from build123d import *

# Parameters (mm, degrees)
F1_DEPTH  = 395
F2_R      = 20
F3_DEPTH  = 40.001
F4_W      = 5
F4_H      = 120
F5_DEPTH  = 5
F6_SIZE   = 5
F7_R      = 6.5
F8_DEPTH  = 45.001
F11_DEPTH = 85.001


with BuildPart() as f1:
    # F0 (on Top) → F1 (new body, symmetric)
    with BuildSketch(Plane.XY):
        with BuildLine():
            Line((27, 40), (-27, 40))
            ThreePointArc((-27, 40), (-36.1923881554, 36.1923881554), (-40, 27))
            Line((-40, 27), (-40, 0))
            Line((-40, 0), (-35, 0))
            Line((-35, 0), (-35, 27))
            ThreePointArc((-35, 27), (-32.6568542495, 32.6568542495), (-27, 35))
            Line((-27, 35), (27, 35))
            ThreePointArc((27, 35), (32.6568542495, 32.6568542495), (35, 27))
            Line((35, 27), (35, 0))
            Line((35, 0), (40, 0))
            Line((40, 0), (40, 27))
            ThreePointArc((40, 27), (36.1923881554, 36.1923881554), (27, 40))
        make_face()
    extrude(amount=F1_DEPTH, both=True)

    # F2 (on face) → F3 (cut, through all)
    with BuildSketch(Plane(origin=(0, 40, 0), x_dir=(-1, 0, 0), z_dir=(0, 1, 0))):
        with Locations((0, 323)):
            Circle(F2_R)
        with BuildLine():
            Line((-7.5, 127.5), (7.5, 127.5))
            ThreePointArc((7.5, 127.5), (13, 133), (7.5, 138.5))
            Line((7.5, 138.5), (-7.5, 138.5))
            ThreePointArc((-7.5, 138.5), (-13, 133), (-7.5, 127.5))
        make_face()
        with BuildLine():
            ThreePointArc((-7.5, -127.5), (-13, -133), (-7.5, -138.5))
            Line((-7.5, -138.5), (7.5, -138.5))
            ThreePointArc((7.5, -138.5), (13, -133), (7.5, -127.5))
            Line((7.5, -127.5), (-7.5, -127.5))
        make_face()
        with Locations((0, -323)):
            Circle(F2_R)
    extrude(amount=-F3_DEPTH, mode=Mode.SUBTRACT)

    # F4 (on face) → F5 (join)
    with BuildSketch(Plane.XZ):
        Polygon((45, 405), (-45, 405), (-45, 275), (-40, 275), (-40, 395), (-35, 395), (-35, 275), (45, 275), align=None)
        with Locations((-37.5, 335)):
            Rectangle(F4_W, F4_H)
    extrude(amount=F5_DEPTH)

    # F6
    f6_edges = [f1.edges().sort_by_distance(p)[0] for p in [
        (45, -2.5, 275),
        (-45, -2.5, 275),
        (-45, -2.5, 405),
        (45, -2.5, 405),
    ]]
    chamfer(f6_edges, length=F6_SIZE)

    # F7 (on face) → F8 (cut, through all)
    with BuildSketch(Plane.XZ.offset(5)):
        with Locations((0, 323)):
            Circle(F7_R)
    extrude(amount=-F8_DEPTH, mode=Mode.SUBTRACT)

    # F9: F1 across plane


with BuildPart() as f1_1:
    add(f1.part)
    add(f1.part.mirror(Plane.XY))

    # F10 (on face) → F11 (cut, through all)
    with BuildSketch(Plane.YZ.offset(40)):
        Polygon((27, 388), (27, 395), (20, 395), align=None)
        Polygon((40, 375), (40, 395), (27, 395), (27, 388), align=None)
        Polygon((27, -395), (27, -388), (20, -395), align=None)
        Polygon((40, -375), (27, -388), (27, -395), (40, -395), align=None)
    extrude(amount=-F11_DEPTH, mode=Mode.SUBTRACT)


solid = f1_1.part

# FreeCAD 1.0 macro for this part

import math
import FreeCAD as App
import Part
import Sketcher
Q = App.Units.Quantity


def edges_at(feature, points):
    """Names of the edges that pass closest to the given points."""
    edges = feature.Shape.Edges
    near = lambda p: min(range(len(edges)), key=lambda i: edges[i].distToShape(Part.Vertex(*p))[0])
    return sorted({f"Edge{near(p) + 1}" for p in points})


def add_polygon(sketch, points):
    """Adds a closed chain of lines whose ends are joined by coincident constraints."""
    first, n = sketch.GeometryCount, len(points)
    for a, b in zip(points, points[1:] + points[:1]):
        sketch.addGeometry(Part.LineSegment(App.Vector(*a, 0), App.Vector(*b, 0)), False)
    for i in range(n):
        sketch.addConstraint(Sketcher.Constraint("Coincident", first + i, 2, first + (i + 1) % n, 1))

doc = App.newDocument("Part")
body = doc.addObject("PartDesign::Body", "Body")

# Sketch on XY plane
sketch1 = body.newObject("Sketcher::SketchObject", "Sketch")
sketch1.AttachmentSupport = (doc.getObject("XY_Plane"), [""])
sketch1.MapMode = "FlatFace"
sketch1.addGeometry([
    Part.LineSegment(App.Vector(27, 40, 0), App.Vector(-27, 40, 0)),  # 0
    Part.ArcOfCircle(Part.Circle(App.Vector(-27, 27, 0), App.Vector(0, 0, 1), 13), math.radians(90), math.radians(180)),  # 1
    Part.LineSegment(App.Vector(-40, 27, 0), App.Vector(-40, 0, 0)),  # 2
    Part.LineSegment(App.Vector(-40, 0, 0), App.Vector(-35, 0, 0)),  # 3
    Part.LineSegment(App.Vector(-35, 0, 0), App.Vector(-35, 27, 0)),  # 4
    Part.ArcOfCircle(Part.Circle(App.Vector(-27, 27, 0), App.Vector(0, 0, 1), 8), math.radians(90), math.radians(180)),  # 5
    Part.LineSegment(App.Vector(-27, 35, 0), App.Vector(27, 35, 0)),  # 6
    Part.ArcOfCircle(Part.Circle(App.Vector(27, 27, 0), App.Vector(0, 0, 1), 8), math.radians(0), math.radians(90)),  # 7
    Part.LineSegment(App.Vector(35, 27, 0), App.Vector(35, 0, 0)),  # 8
    Part.LineSegment(App.Vector(35, 0, 0), App.Vector(40, 0, 0)),  # 9
    Part.LineSegment(App.Vector(40, 0, 0), App.Vector(40, 27, 0)),  # 10
    Part.ArcOfCircle(Part.Circle(App.Vector(27, 27, 0), App.Vector(0, 0, 1), 13), math.radians(0), math.radians(90)),  # 11
], False)
sketch1.addConstraint([
    Sketcher.Constraint("Tangent", 0, 2, 1, 1),
    Sketcher.Constraint("Tangent", 1, 2, 2, 1),
    Sketcher.Constraint("Coincident", 2, 2, 3, 1),
    Sketcher.Constraint("Coincident", 3, 2, 4, 1),
    Sketcher.Constraint("Tangent", 4, 2, 5, 2),
    Sketcher.Constraint("Tangent", 5, 1, 6, 1),
    Sketcher.Constraint("Tangent", 6, 2, 7, 2),
    Sketcher.Constraint("Tangent", 7, 1, 8, 1),
    Sketcher.Constraint("Coincident", 8, 2, 9, 1),
    Sketcher.Constraint("Coincident", 9, 2, 10, 1),
    Sketcher.Constraint("Tangent", 10, 2, 11, 1),
    Sketcher.Constraint("Tangent", 11, 2, 0, 1),
    Sketcher.Constraint("Horizontal", 0),
    Sketcher.Constraint("Vertical", 2),
    Sketcher.Constraint("Horizontal", 3),
    Sketcher.Constraint("Vertical", 4),
    Sketcher.Constraint("Horizontal", 6),
    Sketcher.Constraint("Vertical", 8),
    Sketcher.Constraint("Horizontal", 9),
    Sketcher.Constraint("Vertical", 10),
    Sketcher.Constraint("Coincident", 5, 3, 1, 3),
    Sketcher.Constraint("Coincident", 11, 3, 7, 3),
    Sketcher.Constraint("Equal", 5, 7),
    Sketcher.Constraint("Symmetric", 3, 2, 8, 2, -1, 1),
    Sketcher.Constraint("PointOnObject", 2, 2, -1),
    Sketcher.Constraint("Radius", 1, Q("13 mm")),
    Sketcher.Constraint("Radius", 5, Q("8 mm")),
    Sketcher.Constraint("DistanceX", 0, 2, 0, 1, Q("54 mm")),
    Sketcher.Constraint("DistanceY", 2, 2, 2, 1, Q("27 mm")),
])
pad1 = body.newObject("PartDesign::Pad", "Pad")
pad1.Profile = sketch1
pad1.Length = 790
pad1.Midplane = True

# Sketch on XZ plane
sketch2 = body.newObject("Sketcher::SketchObject", "Sketch001")
sketch2.AttachmentSupport = (doc.getObject("XZ_Plane"), [""])
sketch2.MapMode = "FlatFace"
sketch2.AttachmentOffset = App.Placement(App.Vector(0, 0, -40), App.Rotation())
sketch2.addGeometry([
    Part.Circle(App.Vector(0, 323, 0), App.Vector(0, 0, 1), 20),  # 0
    Part.LineSegment(App.Vector(8, 128, 0), App.Vector(-8, 128, 0)),  # 1
    Part.ArcOfCircle(Part.Circle(App.Vector(-8, 133, 0), App.Vector(0, 0, 1), 6), math.radians(90), math.radians(270)),  # 2
    Part.LineSegment(App.Vector(-8, 138, 0), App.Vector(8, 138, 0)),  # 3
    Part.ArcOfCircle(Part.Circle(App.Vector(8, 133, 0), App.Vector(0, 0, 1), 6), math.radians(-90), math.radians(90)),  # 4
    Part.ArcOfCircle(Part.Circle(App.Vector(8, -133, 0), App.Vector(0, 0, 1), 6), math.radians(-90), math.radians(90)),  # 5
    Part.LineSegment(App.Vector(8, -138, 0), App.Vector(-8, -138, 0)),  # 6
    Part.ArcOfCircle(Part.Circle(App.Vector(-8, -133, 0), App.Vector(0, 0, 1), 6), math.radians(90), math.radians(270)),  # 7
    Part.LineSegment(App.Vector(-8, -128, 0), App.Vector(8, -128, 0)),  # 8
    Part.Circle(App.Vector(0, -323, 0), App.Vector(0, 0, 1), 20),  # 9
], False)
sketch2.addConstraint([
    Sketcher.Constraint("Tangent", 1, 2, 2, 2),
    Sketcher.Constraint("Tangent", 2, 1, 3, 1),
    Sketcher.Constraint("Tangent", 3, 2, 4, 2),
    Sketcher.Constraint("Tangent", 4, 1, 1, 1),
    Sketcher.Constraint("Tangent", 5, 1, 6, 1),
    Sketcher.Constraint("Tangent", 6, 2, 7, 2),
    Sketcher.Constraint("Tangent", 7, 1, 8, 1),
    Sketcher.Constraint("Tangent", 8, 2, 5, 2),
    Sketcher.Constraint("Horizontal", 1),
    Sketcher.Constraint("Horizontal", 3),
    Sketcher.Constraint("Horizontal", 6),
    Sketcher.Constraint("Horizontal", 8),
    Sketcher.Constraint("Equal", 4, 5),
    Sketcher.Constraint("Equal", 0, 9),
    Sketcher.Constraint("Symmetric", 2, 3, 5, 3, -1, 1),
    Sketcher.Constraint("Symmetric", 0, 3, 9, 3, -1, 1),
    Sketcher.Constraint("PointOnObject", 0, 3, -2),
    Sketcher.Constraint("Vertical", 4, 3, 5, 3),
    Sketcher.Constraint("Vertical", 2, 3, 7, 3),
    Sketcher.Constraint("Diameter", 0, Q("40 mm")),
    Sketcher.Constraint("Radius", 2, Q("5.5 mm")),
    Sketcher.Constraint("DistanceX", 1, 2, 1, 1, Q("15 mm")),
    Sketcher.Constraint("DistanceY", -1, 1, 0, 3, Q("323 mm")),
    Sketcher.Constraint("DistanceY", -1, 1, 2, 3, Q("133 mm")),
])
pocket1 = body.newObject("PartDesign::Pocket", "Pocket")
pocket1.Profile = sketch2
pocket1.Type = "ThroughAll"
pocket1.Reversed = True

# Sketch on XZ plane
sketch3 = body.newObject("Sketcher::SketchObject", "Sketch002")
sketch3.AttachmentSupport = (doc.getObject("XZ_Plane"), [""])
sketch3.MapMode = "FlatFace"
add_polygon(sketch3, [(45, 405), (-45, 405), (-45, 275), (45, 275)])  # lines 0-3
sketch3.addConstraint([
    Sketcher.Constraint("Horizontal", 0),
    Sketcher.Constraint("Vertical", 1),
    Sketcher.Constraint("Horizontal", 2),
    Sketcher.Constraint("Vertical", 3),
    Sketcher.Constraint("DistanceX", 0, 2, 0, 1, Q("90 mm")),
    Sketcher.Constraint("DistanceY", 1, 2, 1, 1, Q("130 mm")),
    Sketcher.Constraint("DistanceX", 0, 2, -1, 1, Q("45 mm")),
    Sketcher.Constraint("DistanceY", -1, 1, 0, 2, Q("405 mm")),
])
pad2 = body.newObject("PartDesign::Pad", "Pad001")
pad2.Profile = sketch3
pad2.Length = 5
doc.recompute()

chamfer = body.newObject("PartDesign::Chamfer", "Chamfer")
chamfer.Base = (pad2, edges_at(pad2, [
    (45, -2.5, 275),
    (-45, -2.5, 275),
    (-45, -2.5, 405),
    (45, -2.5, 405),
]))
chamfer.Size = 5

# Sketch on XZ plane
sketch4 = body.newObject("Sketcher::SketchObject", "Sketch003")
sketch4.AttachmentSupport = (doc.getObject("XZ_Plane"), [""])
sketch4.MapMode = "FlatFace"
sketch4.AttachmentOffset = App.Placement(App.Vector(0, 0, 5), App.Rotation())
sketch4.addGeometry(Part.Circle(App.Vector(0, 323, 0), App.Vector(0, 0, 1), 6), False)
sketch4.addConstraint([
    Sketcher.Constraint("PointOnObject", 0, 3, -2),
    Sketcher.Constraint("Diameter", 0, Q("13 mm")),
    Sketcher.Constraint("DistanceY", -1, 1, 0, 3, Q("323 mm")),
])
pocket2 = body.newObject("PartDesign::Pocket", "Pocket001")
pocket2.Profile = sketch4
pocket2.Type = "ThroughAll"
body2 = doc.addObject("PartDesign::Body", "Body001")
doc.recompute()

body2.BaseFeature = body
doc.recompute()

mirroring = doc.addObject("Part::Mirroring", "Mirroring")
mirroring.Source = body
mirroring.Base = App.Vector(0, 0, 0)
mirroring.Normal = App.Vector(0, 0, 1)
body3 = doc.addObject("PartDesign::Body", "Body002")
body3.BaseFeature = mirroring
boolean = body2.newObject("PartDesign::Boolean", "Boolean")
boolean.Type = "Fuse"
boolean.addObjects([body3])
doc.recompute()

# Sketch on YZ plane
sketch5 = body2.newObject("Sketcher::SketchObject", "Sketch004")
sketch5.AttachmentSupport = (doc.getObject("YZ_Plane001"), [""])
sketch5.MapMode = "FlatFace"
sketch5.AttachmentOffset = App.Placement(App.Vector(0, 0, 40), App.Rotation())
add_polygon(sketch5, [(20, 395), (40, 375), (40, 395)])  # lines 0-2
add_polygon(sketch5, [(20, -395), (40, -395), (40, -375)])  # lines 3-5
sketch5.addConstraint([
    Sketcher.Constraint("Vertical", 1),
    Sketcher.Constraint("Horizontal", 2),
    Sketcher.Constraint("Horizontal", 3),
    Sketcher.Constraint("Vertical", 4),
    Sketcher.Constraint("Symmetric", 1, 2, 3, 2, -1),
    Sketcher.Constraint("Perpendicular", 0, 5),
    Sketcher.Constraint("Vertical", 2, 2, 5, 2),
    Sketcher.Constraint("Equal", 3, 1),
    Sketcher.Constraint("DistanceX", 2, 2, 2, 1, Q("20 mm")),
    Sketcher.Constraint("DistanceX", -1, 1, 0, 2, Q("40 mm")),
    Sketcher.Constraint("DistanceY", -1, 1, 0, 2, Q("375 mm")),
])
pocket3 = body2.newObject("PartDesign::Pocket", "Pocket002")
pocket3.Profile = sketch5
pocket3.Type = "ThroughAll"
mirroring.Visibility = False

doc.recompute()
